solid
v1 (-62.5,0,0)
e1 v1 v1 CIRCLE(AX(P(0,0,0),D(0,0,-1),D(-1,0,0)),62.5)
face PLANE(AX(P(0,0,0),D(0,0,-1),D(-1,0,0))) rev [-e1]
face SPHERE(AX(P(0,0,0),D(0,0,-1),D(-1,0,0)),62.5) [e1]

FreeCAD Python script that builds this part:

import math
import FreeCAD as App
import Part
import Sketcher

doc = App.newDocument("Part")
params = doc.addObject("Spreadsheet::Sheet", "Params")
for row, (alias, value) in enumerate([
    ("sketch1_radius", "62.5 mm"),
    ("revolution_angle", "180 deg"),
], start=1):
    params.set(f"A{row}", alias)
    params.set(f"B{row}", "=" + value)
    params.setAlias(f"B{row}", alias)

body = doc.addObject("PartDesign::Body", "Body")

# Sketch on XY plane
sketch1 = body.newObject("Sketcher::SketchObject", "Sketch")
sketch1.AttachmentSupport = (doc.getObject("XY_Plane"), [""])
sketch1.MapMode = "FlatFace"
sketch1.addGeometry([
    Part.LineSegment(App.Vector(0, 62, 0), App.Vector(0, -62, 0)),
    Part.ArcOfCircle(Part.Circle(App.Vector(0, 0, 0), App.Vector(0, 0, 1), 62), math.radians(-90), math.radians(90)),
], False)
sketch1.addConstraint([
    Sketcher.Constraint("Coincident", 0, 1, 1, 2),
    Sketcher.Constraint("Coincident", 1, 1, 0, 2),
    Sketcher.Constraint("Vertical", 0),
    Sketcher.Constraint("Coincident", 1, 3, -1, 1),
    Sketcher.Constraint("PointOnObject", 0, 1, -2),
    Sketcher.Constraint("Radius", 1, 62.5),
])
sketch1.setExpression("Constraints[5]", "Params.sketch1_radius")
revolution = body.newObject("PartDesign::Revolution", "Revolution")
revolution.Profile = sketch1
revolution.ReferenceAxis = (sketch1, ["V_Axis"])
revolution.setExpression("Angle", "Params.revolution_angle")

doc.recompute()
